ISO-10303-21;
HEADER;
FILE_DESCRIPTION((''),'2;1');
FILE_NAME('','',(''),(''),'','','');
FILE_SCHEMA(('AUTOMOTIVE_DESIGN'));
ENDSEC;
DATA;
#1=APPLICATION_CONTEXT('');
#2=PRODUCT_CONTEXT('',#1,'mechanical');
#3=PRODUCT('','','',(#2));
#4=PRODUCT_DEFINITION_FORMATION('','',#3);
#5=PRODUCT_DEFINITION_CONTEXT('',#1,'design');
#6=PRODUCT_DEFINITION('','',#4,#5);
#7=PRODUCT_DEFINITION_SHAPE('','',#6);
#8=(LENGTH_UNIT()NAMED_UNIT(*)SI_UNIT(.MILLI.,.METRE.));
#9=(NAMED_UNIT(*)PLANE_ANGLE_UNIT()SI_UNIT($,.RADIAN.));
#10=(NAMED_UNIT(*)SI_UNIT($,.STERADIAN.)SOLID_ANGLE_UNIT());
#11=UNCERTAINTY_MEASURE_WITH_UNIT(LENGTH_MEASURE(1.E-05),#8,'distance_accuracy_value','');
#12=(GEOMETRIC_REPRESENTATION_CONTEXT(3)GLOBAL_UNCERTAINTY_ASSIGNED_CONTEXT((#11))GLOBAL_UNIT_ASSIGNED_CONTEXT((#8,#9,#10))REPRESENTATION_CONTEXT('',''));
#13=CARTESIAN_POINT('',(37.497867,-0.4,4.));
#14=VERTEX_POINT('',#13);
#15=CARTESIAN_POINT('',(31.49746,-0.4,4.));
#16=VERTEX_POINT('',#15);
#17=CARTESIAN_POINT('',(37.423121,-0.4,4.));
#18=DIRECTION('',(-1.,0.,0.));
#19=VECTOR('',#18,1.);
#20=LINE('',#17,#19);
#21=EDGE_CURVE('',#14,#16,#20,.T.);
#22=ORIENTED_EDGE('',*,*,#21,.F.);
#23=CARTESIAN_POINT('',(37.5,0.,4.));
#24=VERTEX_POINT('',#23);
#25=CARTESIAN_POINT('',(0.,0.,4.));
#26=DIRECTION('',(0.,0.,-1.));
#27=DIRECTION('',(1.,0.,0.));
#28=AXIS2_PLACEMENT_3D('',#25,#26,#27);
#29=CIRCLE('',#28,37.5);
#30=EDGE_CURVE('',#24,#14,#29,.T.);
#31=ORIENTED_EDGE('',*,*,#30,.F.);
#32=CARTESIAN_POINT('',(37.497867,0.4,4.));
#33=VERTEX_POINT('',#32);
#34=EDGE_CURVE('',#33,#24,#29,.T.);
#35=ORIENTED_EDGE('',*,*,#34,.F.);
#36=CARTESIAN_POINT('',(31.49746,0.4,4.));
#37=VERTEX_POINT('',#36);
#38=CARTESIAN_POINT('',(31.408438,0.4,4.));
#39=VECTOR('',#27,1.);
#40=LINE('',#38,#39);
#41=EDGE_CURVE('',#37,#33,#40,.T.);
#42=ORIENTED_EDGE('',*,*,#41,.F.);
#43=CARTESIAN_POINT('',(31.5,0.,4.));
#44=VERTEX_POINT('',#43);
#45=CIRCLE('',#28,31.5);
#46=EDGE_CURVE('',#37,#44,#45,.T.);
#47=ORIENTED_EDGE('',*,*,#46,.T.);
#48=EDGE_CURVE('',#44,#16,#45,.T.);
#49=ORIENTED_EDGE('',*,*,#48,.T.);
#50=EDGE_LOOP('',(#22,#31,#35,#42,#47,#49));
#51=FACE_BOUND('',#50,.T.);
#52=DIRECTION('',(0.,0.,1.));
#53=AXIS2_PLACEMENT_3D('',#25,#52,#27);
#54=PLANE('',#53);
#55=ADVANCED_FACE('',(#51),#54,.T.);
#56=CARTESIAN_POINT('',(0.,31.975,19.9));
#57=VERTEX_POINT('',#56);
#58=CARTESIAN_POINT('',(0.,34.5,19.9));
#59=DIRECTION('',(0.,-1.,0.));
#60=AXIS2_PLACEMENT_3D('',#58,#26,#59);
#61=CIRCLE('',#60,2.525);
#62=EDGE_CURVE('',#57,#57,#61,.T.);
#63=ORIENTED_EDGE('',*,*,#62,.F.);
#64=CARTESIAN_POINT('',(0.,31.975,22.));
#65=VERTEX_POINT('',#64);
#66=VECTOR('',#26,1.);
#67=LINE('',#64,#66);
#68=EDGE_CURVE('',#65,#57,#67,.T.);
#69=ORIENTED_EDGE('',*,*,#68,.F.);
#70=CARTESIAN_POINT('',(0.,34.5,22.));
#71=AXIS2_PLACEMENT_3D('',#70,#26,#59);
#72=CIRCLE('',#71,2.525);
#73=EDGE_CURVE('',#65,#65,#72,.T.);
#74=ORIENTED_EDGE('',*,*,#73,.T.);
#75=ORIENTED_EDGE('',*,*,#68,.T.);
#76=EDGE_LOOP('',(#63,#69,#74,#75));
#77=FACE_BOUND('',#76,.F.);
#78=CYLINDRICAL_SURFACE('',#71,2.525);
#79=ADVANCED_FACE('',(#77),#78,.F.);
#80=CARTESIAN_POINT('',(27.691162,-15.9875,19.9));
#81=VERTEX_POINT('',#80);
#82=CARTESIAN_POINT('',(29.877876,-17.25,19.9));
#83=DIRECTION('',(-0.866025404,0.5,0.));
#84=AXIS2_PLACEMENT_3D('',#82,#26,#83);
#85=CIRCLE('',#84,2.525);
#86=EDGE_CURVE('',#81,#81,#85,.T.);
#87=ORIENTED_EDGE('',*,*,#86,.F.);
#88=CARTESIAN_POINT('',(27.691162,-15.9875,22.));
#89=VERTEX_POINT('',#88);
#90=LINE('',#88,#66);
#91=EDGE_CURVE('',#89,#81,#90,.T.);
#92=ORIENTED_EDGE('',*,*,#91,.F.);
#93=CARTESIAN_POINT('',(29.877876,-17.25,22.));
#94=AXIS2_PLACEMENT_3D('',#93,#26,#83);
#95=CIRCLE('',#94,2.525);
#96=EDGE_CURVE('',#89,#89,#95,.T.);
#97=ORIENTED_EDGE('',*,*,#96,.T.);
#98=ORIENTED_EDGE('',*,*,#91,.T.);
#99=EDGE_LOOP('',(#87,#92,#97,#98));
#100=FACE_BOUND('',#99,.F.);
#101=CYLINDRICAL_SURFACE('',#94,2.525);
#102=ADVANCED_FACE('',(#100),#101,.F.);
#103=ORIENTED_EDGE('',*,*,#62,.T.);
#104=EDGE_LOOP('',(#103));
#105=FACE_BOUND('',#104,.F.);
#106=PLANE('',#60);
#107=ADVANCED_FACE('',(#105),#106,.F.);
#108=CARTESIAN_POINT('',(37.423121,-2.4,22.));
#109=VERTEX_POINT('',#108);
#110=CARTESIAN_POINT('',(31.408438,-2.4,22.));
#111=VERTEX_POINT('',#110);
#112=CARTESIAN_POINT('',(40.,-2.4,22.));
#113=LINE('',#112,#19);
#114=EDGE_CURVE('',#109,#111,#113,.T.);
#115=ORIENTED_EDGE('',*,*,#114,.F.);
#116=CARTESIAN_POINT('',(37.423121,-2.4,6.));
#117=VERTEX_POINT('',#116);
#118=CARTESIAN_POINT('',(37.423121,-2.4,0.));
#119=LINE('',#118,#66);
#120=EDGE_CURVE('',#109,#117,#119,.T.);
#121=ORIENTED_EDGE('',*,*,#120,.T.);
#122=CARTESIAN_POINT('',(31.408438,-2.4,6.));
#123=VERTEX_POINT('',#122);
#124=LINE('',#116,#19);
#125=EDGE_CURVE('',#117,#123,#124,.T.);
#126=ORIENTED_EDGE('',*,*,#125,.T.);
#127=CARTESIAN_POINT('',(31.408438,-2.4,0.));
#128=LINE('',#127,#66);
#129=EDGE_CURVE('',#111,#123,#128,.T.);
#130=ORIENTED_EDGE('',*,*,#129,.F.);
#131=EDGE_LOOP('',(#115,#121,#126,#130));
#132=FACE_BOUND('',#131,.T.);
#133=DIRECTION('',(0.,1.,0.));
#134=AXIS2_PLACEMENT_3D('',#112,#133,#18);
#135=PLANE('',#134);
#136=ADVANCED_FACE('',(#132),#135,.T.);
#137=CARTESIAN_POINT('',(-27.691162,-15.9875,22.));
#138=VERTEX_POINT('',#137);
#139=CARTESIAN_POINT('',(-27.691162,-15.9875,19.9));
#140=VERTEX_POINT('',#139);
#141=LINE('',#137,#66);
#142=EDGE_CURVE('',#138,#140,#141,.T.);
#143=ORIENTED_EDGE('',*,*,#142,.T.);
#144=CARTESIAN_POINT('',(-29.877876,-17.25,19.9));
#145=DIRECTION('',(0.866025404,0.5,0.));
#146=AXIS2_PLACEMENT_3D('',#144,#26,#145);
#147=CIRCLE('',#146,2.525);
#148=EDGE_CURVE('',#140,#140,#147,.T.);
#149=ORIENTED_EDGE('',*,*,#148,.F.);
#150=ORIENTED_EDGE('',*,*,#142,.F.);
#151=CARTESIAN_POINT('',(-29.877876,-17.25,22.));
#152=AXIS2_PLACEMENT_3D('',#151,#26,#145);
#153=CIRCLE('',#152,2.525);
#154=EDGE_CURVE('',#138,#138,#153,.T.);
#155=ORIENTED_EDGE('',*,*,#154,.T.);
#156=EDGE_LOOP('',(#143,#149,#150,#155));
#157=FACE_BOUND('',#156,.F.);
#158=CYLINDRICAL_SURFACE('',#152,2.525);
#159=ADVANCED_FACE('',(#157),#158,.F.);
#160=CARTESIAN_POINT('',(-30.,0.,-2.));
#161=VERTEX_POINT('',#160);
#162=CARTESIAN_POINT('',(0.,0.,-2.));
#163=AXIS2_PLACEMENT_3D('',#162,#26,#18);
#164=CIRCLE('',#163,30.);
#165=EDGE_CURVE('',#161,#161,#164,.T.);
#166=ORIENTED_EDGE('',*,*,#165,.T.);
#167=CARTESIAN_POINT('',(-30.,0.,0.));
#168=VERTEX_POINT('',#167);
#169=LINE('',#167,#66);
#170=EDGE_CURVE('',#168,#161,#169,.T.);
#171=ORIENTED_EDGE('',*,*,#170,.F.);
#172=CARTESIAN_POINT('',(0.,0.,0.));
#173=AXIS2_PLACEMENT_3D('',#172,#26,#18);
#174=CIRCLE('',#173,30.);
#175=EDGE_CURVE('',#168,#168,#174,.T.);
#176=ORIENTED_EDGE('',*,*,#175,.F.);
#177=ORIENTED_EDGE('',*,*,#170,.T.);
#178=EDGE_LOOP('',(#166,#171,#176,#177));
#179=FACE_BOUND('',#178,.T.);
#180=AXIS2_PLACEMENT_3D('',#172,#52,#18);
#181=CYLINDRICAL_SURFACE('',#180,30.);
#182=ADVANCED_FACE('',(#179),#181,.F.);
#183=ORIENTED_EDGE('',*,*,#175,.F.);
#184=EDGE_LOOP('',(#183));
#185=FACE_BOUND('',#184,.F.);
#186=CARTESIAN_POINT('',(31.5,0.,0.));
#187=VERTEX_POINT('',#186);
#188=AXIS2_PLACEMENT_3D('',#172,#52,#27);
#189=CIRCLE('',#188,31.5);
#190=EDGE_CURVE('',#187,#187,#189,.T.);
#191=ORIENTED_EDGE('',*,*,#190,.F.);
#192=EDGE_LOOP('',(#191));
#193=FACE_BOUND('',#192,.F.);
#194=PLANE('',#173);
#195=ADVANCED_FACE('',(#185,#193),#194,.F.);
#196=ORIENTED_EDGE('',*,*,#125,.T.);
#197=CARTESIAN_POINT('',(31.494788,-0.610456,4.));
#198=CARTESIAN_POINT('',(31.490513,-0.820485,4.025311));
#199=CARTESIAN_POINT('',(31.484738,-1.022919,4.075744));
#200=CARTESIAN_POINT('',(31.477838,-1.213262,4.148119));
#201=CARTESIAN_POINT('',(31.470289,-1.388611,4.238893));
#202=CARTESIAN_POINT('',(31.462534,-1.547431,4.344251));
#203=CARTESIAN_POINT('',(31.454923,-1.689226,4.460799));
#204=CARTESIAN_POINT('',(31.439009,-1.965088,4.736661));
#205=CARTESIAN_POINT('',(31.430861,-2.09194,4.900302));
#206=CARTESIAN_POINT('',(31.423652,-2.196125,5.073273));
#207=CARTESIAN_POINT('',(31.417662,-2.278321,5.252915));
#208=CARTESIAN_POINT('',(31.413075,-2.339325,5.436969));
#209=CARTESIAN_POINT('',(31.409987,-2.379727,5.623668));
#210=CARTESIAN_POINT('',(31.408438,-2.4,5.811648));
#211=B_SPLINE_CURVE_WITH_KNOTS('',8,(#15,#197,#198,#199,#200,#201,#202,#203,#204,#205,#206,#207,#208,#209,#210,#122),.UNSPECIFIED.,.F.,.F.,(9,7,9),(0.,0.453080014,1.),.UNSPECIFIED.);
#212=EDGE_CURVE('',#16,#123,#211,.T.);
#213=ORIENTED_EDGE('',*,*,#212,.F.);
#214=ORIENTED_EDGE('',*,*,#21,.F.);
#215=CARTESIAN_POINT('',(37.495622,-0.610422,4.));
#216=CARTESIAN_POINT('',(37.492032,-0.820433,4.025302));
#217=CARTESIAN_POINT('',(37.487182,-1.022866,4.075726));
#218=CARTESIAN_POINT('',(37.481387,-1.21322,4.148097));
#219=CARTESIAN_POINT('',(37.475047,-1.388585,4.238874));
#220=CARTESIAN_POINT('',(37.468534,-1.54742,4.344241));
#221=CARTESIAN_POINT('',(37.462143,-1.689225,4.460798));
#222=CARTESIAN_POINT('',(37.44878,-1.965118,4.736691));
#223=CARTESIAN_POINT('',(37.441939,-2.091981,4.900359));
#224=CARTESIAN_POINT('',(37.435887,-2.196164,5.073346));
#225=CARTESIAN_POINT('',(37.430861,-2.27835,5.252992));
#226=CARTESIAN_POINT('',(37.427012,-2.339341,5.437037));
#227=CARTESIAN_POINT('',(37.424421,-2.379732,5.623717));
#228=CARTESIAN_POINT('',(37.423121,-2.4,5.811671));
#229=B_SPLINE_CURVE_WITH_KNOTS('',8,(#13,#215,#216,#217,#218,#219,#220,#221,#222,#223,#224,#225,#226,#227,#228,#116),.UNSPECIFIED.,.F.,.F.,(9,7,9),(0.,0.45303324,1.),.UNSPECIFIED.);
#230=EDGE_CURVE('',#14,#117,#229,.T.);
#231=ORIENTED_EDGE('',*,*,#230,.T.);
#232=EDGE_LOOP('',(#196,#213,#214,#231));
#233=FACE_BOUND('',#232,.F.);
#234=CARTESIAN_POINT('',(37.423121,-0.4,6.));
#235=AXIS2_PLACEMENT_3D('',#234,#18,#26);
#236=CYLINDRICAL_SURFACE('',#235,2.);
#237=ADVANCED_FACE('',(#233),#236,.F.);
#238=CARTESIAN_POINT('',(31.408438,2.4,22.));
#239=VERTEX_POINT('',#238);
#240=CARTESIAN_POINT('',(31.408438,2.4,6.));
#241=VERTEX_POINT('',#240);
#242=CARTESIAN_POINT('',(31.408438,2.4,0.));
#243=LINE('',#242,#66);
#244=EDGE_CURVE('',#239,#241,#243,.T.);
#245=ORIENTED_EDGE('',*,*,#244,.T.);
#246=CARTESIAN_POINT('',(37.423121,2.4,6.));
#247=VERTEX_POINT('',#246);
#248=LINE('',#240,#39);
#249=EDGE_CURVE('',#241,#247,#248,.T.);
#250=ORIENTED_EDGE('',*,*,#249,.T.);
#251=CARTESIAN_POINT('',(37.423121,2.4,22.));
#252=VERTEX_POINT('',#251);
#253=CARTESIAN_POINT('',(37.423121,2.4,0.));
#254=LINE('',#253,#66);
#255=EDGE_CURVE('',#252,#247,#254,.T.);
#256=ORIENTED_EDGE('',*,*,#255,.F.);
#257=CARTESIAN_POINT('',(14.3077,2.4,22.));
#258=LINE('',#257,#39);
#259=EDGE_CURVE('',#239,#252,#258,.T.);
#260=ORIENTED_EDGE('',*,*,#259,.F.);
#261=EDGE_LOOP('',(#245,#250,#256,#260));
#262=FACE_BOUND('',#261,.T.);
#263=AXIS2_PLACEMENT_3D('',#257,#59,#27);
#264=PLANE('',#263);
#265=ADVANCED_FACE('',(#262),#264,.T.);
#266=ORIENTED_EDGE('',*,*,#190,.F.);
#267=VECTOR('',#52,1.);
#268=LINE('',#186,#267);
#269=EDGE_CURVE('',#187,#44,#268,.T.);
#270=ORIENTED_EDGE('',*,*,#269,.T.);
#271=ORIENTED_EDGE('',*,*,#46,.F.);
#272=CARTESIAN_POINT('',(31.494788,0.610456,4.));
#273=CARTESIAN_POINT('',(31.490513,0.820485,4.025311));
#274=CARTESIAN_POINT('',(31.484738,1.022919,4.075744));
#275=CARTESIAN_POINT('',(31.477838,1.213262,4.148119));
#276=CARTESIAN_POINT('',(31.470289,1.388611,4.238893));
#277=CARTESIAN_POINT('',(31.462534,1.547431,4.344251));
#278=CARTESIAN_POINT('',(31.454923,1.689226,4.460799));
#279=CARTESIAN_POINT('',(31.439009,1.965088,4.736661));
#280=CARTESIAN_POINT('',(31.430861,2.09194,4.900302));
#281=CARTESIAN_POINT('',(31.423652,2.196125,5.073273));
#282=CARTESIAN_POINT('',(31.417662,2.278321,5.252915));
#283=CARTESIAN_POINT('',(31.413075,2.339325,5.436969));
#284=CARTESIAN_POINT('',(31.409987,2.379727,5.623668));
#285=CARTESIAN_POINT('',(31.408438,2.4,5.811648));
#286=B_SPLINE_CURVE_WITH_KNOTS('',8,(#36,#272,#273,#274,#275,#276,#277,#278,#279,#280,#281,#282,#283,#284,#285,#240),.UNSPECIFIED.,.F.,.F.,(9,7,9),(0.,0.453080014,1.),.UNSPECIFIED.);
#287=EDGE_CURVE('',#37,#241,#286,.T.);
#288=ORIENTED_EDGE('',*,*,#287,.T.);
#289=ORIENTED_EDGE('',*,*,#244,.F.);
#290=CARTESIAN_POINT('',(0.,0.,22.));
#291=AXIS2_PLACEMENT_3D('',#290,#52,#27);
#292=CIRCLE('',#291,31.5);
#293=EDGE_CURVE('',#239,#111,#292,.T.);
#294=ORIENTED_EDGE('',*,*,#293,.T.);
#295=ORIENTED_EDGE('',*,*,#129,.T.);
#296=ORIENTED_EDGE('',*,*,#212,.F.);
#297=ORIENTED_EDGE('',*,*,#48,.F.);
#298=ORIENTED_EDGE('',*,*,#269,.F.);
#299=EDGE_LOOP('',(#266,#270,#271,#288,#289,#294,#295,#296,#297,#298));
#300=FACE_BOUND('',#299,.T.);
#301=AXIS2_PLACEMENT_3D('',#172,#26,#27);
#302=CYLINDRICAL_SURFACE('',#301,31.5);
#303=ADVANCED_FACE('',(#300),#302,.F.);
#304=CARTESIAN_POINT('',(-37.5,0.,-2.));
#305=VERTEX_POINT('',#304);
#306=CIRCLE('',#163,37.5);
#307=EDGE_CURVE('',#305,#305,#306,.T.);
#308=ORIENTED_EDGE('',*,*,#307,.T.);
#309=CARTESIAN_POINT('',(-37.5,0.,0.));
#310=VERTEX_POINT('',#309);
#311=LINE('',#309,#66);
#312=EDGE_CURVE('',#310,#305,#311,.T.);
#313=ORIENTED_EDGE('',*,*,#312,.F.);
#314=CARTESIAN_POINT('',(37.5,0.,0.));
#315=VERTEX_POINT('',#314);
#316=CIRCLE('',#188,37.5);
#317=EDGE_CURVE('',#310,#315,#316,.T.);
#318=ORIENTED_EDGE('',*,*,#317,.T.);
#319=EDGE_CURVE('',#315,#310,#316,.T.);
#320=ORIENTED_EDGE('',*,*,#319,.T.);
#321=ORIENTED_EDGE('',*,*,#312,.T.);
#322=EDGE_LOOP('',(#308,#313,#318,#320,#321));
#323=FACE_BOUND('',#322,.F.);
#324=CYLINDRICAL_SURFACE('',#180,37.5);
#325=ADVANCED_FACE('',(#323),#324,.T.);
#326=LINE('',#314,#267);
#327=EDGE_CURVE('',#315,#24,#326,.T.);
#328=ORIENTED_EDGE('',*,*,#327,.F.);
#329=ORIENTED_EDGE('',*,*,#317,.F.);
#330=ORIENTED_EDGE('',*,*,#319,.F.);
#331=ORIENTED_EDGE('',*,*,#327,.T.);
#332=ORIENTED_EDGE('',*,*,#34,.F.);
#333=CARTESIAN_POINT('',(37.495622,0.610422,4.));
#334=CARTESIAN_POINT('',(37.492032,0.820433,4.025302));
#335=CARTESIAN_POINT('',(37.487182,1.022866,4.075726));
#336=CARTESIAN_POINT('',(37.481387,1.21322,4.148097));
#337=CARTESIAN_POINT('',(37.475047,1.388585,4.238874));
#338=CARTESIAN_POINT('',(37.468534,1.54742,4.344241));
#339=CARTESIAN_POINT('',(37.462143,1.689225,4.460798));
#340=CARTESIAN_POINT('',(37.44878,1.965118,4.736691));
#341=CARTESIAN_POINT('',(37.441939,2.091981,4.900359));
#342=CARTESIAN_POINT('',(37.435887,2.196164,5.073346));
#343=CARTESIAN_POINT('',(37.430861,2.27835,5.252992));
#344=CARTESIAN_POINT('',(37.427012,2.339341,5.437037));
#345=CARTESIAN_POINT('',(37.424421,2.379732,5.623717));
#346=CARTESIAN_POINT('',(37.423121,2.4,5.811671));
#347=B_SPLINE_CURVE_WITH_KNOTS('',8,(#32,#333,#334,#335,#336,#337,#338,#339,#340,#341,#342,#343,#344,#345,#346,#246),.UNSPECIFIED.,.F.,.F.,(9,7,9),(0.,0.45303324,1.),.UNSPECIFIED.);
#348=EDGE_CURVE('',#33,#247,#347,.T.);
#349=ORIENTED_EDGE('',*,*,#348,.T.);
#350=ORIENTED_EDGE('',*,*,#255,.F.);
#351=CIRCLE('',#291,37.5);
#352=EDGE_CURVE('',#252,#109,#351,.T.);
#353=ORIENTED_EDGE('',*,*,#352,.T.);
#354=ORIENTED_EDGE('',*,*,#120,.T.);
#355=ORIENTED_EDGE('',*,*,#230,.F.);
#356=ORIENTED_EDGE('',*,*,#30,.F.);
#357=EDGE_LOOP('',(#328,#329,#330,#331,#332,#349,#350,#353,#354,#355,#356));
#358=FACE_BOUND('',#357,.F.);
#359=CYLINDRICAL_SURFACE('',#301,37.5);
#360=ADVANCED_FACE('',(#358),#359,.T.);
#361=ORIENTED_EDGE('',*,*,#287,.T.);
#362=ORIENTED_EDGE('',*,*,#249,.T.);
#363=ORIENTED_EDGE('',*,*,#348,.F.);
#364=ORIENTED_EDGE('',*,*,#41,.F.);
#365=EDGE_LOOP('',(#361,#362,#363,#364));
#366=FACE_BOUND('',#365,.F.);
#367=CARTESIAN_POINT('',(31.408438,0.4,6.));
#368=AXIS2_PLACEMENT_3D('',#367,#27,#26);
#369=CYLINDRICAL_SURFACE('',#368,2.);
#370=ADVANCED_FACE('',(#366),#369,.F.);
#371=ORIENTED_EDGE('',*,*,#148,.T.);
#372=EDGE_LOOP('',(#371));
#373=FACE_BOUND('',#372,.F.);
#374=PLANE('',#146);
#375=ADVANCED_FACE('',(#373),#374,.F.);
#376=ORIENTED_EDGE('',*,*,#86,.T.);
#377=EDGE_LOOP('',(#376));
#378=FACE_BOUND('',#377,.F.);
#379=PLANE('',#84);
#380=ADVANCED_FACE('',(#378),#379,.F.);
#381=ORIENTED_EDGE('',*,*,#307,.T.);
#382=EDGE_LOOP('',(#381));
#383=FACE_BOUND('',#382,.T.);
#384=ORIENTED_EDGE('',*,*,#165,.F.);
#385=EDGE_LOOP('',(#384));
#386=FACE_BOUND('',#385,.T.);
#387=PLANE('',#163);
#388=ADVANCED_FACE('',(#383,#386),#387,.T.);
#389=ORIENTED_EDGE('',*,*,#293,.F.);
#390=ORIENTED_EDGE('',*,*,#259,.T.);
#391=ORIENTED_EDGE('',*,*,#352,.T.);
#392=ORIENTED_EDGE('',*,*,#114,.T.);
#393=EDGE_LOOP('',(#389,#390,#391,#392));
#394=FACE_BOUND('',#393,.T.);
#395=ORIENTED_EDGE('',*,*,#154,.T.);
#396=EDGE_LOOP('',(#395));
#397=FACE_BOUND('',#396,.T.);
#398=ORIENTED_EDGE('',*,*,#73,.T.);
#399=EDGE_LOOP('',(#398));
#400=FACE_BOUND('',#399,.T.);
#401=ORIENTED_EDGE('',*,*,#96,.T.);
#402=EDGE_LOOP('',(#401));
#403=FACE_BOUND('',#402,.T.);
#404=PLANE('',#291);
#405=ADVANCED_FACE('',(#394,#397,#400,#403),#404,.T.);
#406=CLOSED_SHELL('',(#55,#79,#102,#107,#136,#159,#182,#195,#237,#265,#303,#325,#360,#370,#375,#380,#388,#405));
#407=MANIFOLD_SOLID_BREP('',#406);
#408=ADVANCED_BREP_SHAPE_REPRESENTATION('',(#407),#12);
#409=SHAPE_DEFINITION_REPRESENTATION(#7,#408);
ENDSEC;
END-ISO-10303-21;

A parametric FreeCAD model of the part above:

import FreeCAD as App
import Part
import Sketcher

V = App.Vector


def edges_at(feature, points):
    """Names of the edges that pass closest to the given points."""
    edges = feature.Shape.Edges
    near = lambda p: min(range(len(edges)), key=lambda i: edges[i].distToShape(Part.Vertex(*p))[0])
    return sorted({f"Edge{near(p) + 1}" for p in points})

doc = App.newDocument("Part")
body = doc.addObject("PartDesign::Body", "Body")

sketch1 = body.newObject("Sketcher::SketchObject", "Sketch")
sketch1.AttachmentSupport = (doc.getObject("XY_Plane"), [""])
sketch1.MapMode = "FlatFace"
sketch1.addGeometry([
    Part.Circle(V(0, 0, 0), V(0, 0, 1), 38),
    Part.Circle(V(0, 0, 0), V(0, 0, 1), 32),
], False)
sketch1.addConstraint([
    Sketcher.Constraint("Coincident", 0, 3, -1, 1),
    Sketcher.Constraint("Coincident", 1, 3, -1, 1),
    Sketcher.Constraint("Diameter", 0, 75.0),
    Sketcher.Constraint("Diameter", 1, 63.0),
])
pad1 = body.newObject("PartDesign::Pad", "Pad")
pad1.Profile = sketch1
pad1.Length = 22

sketch2 = body.newObject("Sketcher::SketchObject", "Sketch001")
sketch2.AttachmentSupport = (doc.getObject("XY_Plane"), [""])
sketch2.MapMode = "FlatFace"
sketch2.addGeometry([
    Part.Circle(V(0, 0, 0), V(0, 0, 1), 38),
    Part.Circle(V(0, 0, 0), V(0, 0, 1), 30),
], False)
sketch2.addConstraint([
    Sketcher.Constraint("Coincident", 0, 3, -1, 1),
    Sketcher.Constraint("Coincident", 1, 3, -1, 1),
    Sketcher.Constraint("Diameter", 0, 75.0),
    Sketcher.Constraint("Diameter", 1, 60.0),
])
pad2 = body.newObject("PartDesign::Pad", "Pad001")
pad2.Profile = sketch2
pad2.Length = 2
pad2.Reversed = True

sketch3 = body.newObject("Sketcher::SketchObject", "Sketch002")
sketch3.AttachmentSupport = (doc.getObject("XY_Plane"), [""])
sketch3.MapMode = "FlatFace"
sketch3.AttachmentOffset = App.Placement(V(0, 0, 22), App.Rotation())
sketch3.addGeometry(Part.Circle(V(0, 34.5, 0), V(0, 0, 1), 2.5), False)
sketch3.addConstraint([
    Sketcher.Constraint("PointOnObject", 0, 3, -2),
    Sketcher.Constraint("Diameter", 0, 5.05),
    Sketcher.Constraint("DistanceY", -1, 1, 0, 3, 34.5),
])
doc.recompute()
hole = body.newObject("PartDesign::Hole", "Hole")
hole.Profile = sketch3
hole.ThreadType = "None"
hole.Diameter = 5.05
hole.DepthType = "Dimension"
hole.Depth = 2.1
hole.DrillPoint = "Flat"
doc.recompute()

polarpattern = body.newObject("PartDesign::PolarPattern", "PolarPattern")
polarpattern.Originals = [hole]
polarpattern.Axis = (doc.getObject("Z_Axis"), [""])
polarpattern.Angle = 360
polarpattern.Occurrences = 3
body.Tip = polarpattern

sketch4 = body.newObject("Sketcher::SketchObject", "Sketch003")
sketch4.AttachmentSupport = (doc.getObject("XY_Plane"), [""])
sketch4.MapMode = "FlatFace"
sketch4.AttachmentOffset = App.Placement(V(0, 0, 22), App.Rotation())
sketch4.addGeometry([
    Part.LineSegment(V(40, 2.4, 0), V(14.3, 2.4, 0)),
    Part.LineSegment(V(14.3, 2.4, 0), V(14.3, -2.4, 0)),
    Part.LineSegment(V(14.3, -2.4, 0), V(40, -2.4, 0)),
    Part.LineSegment(V(40, -2.4, 0), V(40, 2.4, 0)),
], False)
sketch4.addConstraint([
    Sketcher.Constraint("Coincident", 0, 2, 1, 1),
    Sketcher.Constraint("Coincident", 1, 2, 2, 1),
    Sketcher.Constraint("Coincident", 2, 2, 3, 1),
    Sketcher.Constraint("Coincident", 3, 2, 0, 1),
    Sketcher.Constraint("Horizontal", 0),
    Sketcher.Constraint("Vertical", 1),
    Sketcher.Constraint("Horizontal", 2),
    Sketcher.Constraint("Vertical", 3),
    Sketcher.Constraint("DistanceY", 1, 2, 1, 1, 4.8),
    Sketcher.Constraint("DistanceX", -1, 1, 2, 2, 40.0),
    Sketcher.Constraint("DistanceY", -1, 1, 0, 2, 2.4),
    Sketcher.Constraint("DistanceX", 0, 2, 0, 1, 25.6923),
])
pocket1 = body.newObject("PartDesign::Pocket", "Pocket")
pocket1.Profile = sketch4
pocket1.Length = 18
doc.recompute()

fillet = body.newObject("PartDesign::Fillet", "Fillet")
fillet.Base = (pocket1, edges_at(pocket1, [(34.416, 2.4, 4), (34.416, -2.4, 4)]))
fillet.Radius = 2

doc.recompute()
